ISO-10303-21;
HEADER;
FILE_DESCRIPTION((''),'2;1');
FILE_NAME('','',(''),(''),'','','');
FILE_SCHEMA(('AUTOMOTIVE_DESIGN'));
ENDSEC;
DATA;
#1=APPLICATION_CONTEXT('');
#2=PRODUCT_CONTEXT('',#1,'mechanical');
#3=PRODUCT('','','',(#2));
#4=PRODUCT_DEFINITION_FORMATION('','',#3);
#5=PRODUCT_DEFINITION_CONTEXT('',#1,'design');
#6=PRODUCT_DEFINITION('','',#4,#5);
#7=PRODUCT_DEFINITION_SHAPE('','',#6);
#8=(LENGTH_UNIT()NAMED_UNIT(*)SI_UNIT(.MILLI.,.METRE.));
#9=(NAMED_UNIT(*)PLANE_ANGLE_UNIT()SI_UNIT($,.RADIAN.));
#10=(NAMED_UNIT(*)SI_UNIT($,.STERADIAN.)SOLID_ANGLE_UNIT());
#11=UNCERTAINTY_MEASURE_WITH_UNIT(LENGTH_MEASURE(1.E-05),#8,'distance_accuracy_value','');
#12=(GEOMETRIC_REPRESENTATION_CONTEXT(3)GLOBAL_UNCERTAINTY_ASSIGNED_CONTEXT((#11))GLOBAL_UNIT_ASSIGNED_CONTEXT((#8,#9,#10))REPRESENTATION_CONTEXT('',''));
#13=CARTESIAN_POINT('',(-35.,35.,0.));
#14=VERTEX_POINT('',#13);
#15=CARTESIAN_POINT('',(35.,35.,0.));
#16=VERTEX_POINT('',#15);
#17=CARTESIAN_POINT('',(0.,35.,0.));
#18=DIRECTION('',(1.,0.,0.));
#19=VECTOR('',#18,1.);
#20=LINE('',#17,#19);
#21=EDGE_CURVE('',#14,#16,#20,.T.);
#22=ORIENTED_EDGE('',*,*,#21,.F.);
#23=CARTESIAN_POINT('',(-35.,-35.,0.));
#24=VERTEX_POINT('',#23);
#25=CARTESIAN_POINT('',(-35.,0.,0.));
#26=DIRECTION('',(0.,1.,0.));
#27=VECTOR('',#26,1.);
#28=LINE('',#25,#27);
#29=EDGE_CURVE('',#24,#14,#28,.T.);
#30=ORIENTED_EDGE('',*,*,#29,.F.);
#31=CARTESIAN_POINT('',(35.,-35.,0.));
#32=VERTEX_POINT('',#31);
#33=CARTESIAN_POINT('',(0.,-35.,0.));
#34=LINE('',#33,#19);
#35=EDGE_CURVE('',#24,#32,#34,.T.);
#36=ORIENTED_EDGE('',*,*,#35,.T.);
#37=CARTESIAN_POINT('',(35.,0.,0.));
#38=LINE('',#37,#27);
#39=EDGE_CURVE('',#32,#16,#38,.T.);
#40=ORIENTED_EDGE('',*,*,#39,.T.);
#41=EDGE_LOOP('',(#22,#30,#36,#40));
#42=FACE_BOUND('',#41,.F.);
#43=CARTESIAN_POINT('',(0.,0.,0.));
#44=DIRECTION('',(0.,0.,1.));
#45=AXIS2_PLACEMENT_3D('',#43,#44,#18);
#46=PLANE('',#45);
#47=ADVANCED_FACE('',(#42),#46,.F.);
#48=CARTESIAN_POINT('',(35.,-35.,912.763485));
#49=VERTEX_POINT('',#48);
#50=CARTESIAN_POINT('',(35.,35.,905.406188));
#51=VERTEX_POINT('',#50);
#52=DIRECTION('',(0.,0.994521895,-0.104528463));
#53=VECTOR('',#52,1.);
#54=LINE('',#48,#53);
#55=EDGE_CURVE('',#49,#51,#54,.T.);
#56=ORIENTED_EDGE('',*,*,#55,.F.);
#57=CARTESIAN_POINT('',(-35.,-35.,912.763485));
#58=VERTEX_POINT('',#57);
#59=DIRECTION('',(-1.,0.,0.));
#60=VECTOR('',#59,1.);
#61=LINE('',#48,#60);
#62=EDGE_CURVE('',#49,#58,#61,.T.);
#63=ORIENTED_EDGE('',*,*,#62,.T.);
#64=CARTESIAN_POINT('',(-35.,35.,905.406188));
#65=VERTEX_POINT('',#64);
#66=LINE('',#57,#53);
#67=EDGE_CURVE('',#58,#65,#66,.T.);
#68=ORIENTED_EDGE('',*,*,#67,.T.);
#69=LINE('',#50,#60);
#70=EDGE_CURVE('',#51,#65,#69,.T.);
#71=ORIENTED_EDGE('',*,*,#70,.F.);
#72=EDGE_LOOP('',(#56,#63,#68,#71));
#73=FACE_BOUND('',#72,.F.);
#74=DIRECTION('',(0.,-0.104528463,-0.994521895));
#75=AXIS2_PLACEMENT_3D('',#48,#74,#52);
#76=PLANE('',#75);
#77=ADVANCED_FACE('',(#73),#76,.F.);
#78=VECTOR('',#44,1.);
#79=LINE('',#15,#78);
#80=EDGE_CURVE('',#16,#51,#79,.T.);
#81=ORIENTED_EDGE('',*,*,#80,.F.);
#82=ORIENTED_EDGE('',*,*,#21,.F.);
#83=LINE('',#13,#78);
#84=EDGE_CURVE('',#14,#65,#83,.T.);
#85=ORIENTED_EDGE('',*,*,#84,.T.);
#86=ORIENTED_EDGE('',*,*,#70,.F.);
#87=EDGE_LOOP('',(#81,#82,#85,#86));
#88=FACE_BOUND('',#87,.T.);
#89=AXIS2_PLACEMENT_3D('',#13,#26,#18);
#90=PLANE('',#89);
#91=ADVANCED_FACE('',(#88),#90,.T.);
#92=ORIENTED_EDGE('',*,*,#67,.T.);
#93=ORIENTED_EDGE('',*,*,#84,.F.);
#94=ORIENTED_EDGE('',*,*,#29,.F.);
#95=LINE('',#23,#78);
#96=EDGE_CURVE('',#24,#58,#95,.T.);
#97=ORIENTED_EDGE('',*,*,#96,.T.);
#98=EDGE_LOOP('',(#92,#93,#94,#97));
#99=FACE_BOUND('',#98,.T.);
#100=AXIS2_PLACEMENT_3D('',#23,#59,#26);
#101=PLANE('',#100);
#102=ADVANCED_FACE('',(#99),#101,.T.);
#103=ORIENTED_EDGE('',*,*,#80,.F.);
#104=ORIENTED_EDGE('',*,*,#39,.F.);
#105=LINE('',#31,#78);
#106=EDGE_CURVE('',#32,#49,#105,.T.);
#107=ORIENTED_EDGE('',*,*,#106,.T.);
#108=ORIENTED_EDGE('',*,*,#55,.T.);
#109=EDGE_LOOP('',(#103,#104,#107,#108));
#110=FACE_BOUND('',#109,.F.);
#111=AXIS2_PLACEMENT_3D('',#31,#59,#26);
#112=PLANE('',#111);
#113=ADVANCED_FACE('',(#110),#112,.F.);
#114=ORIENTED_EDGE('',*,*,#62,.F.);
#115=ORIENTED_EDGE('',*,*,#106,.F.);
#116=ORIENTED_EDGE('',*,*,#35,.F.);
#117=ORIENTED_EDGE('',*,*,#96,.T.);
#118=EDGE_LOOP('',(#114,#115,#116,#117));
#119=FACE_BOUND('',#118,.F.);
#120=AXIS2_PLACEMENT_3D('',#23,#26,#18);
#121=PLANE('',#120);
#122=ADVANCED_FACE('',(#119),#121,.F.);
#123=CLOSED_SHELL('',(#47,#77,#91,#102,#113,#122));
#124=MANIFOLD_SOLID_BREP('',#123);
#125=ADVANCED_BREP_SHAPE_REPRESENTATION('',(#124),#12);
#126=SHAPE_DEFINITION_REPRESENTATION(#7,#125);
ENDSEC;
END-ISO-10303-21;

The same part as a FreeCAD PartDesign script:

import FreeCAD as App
import Part
import Sketcher
from FreeCAD import Vector
Q = App.Units.Quantity

doc = App.newDocument("Part")
params = doc.addObject("Spreadsheet::Sheet", "Params")
for row, (alias, value) in enumerate([
    ("sketch1_width", "70 mm"),
    ("pad1_length", "1000 mm"),
    ("sketch2_width", "70 mm"),
], start=1):
    params.set(f"A{row}", alias)
    params.set(f"B{row}", "=" + value)
    params.setAlias(f"B{row}", alias)

body = doc.addObject("PartDesign::Body", "Body")

# Sketch on XY plane
sketch1 = doc.addObject("Sketcher::SketchObject", "Sketch")
body.addObject(sketch1)
sketch1.AttachmentSupport = (doc.XY_Plane, [""])
sketch1.MapMode = "FlatFace"
sketch1.addGeometry(Part.LineSegment(Vector(-35, 35, 0), Vector(-35, -35, 0)), False)
sketch1.addGeometry(Part.LineSegment(Vector(-35, -35, 0), Vector(35, -35, 0)), False)
sketch1.addGeometry(Part.LineSegment(Vector(35, -35, 0), Vector(35, 35, 0)), False)
sketch1.addGeometry(Part.LineSegment(Vector(35, 35, 0), Vector(-35, 35, 0)), False)
sketch1.addConstraint(Sketcher.Constraint("Coincident", 0, 2, 1, 1))
sketch1.addConstraint(Sketcher.Constraint("Coincident", 1, 2, 2, 1))
sketch1.addConstraint(Sketcher.Constraint("Coincident", 2, 2, 3, 1))
sketch1.addConstraint(Sketcher.Constraint("Coincident", 3, 2, 0, 1))
sketch1.addConstraint(Sketcher.Constraint("Vertical", 0))
sketch1.addConstraint(Sketcher.Constraint("Horizontal", 1))
sketch1.addConstraint(Sketcher.Constraint("Vertical", 2))
sketch1.addConstraint(Sketcher.Constraint("Horizontal", 3))
sketch1.addConstraint(Sketcher.Constraint("Symmetric", 0, 2, 2, 2, -1, 1))
sketch1.addConstraint(Sketcher.Constraint("Equal", 3, 0))
sketch1.addConstraint(Sketcher.Constraint("DistanceX", 1, 1, 1, 2, Q("70 mm")))
sketch1.setExpression("Constraints[10]", "Params.sketch1_width")
pad1 = doc.addObject("PartDesign::Pad", "Pad")
body.addObject(pad1)
pad1.Profile = sketch1
pad1.setExpression("Length", "Params.pad1_length")

# Sketch on YZ plane
sketch2 = doc.addObject("Sketcher::SketchObject", "Sketch001")
body.addObject(sketch2)
sketch2.AttachmentSupport = (doc.YZ_Plane, [""])
sketch2.MapMode = "FlatFace"
sketch2.AttachmentOffset = App.Placement(Vector(0, 0, 35), App.Rotation())
sketch2.addGeometry(Part.LineSegment(Vector(-35, 1000, 0), Vector(-35, 913, 0)), False)
sketch2.addGeometry(Part.LineSegment(Vector(-35, 913, 0), Vector(35, 905, 0)), False)
sketch2.addGeometry(Part.LineSegment(Vector(35, 905, 0), Vector(35, 1000, 0)), False)
sketch2.addGeometry(Part.LineSegment(Vector(35, 1000, 0), Vector(-35, 1000, 0)), False)
sketch2.addConstraint(Sketcher.Constraint("Coincident", 0, 2, 1, 1))
sketch2.addConstraint(Sketcher.Constraint("Coincident", 1, 2, 2, 1))
sketch2.addConstraint(Sketcher.Constraint("Coincident", 2, 2, 3, 1))
sketch2.addConstraint(Sketcher.Constraint("Coincident", 3, 2, 0, 1))
sketch2.addConstraint(Sketcher.Constraint("Vertical", 0))
sketch2.addConstraint(Sketcher.Constraint("Vertical", 2))
sketch2.addConstraint(Sketcher.Constraint("Horizontal", 3))
sketch2.addConstraint(Sketcher.Constraint("DistanceX", 3, 2, 3, 1, Q("70 mm")))
sketch2.addConstraint(Sketcher.Constraint("Angle", 1, Q("-6 deg")))
sketch2.addConstraint(Sketcher.Constraint("DistanceX", 0, 2, -1, 1, Q("35 mm")))
sketch2.addConstraint(Sketcher.Constraint("DistanceY", -1, 1, 2, 2, Q("1000 mm")))
sketch2.addConstraint(Sketcher.Constraint("DistanceY", 2, 1, 2, 2, Q("94.593812 mm")))
sketch2.setExpression("Constraints[7]", "Params.sketch2_width")
pocket1 = doc.addObject("PartDesign::Pocket", "Pocket")
body.addObject(pocket1)
pocket1.Profile = sketch2
pocket1.Type = "ThroughAll"

doc.recompute()
